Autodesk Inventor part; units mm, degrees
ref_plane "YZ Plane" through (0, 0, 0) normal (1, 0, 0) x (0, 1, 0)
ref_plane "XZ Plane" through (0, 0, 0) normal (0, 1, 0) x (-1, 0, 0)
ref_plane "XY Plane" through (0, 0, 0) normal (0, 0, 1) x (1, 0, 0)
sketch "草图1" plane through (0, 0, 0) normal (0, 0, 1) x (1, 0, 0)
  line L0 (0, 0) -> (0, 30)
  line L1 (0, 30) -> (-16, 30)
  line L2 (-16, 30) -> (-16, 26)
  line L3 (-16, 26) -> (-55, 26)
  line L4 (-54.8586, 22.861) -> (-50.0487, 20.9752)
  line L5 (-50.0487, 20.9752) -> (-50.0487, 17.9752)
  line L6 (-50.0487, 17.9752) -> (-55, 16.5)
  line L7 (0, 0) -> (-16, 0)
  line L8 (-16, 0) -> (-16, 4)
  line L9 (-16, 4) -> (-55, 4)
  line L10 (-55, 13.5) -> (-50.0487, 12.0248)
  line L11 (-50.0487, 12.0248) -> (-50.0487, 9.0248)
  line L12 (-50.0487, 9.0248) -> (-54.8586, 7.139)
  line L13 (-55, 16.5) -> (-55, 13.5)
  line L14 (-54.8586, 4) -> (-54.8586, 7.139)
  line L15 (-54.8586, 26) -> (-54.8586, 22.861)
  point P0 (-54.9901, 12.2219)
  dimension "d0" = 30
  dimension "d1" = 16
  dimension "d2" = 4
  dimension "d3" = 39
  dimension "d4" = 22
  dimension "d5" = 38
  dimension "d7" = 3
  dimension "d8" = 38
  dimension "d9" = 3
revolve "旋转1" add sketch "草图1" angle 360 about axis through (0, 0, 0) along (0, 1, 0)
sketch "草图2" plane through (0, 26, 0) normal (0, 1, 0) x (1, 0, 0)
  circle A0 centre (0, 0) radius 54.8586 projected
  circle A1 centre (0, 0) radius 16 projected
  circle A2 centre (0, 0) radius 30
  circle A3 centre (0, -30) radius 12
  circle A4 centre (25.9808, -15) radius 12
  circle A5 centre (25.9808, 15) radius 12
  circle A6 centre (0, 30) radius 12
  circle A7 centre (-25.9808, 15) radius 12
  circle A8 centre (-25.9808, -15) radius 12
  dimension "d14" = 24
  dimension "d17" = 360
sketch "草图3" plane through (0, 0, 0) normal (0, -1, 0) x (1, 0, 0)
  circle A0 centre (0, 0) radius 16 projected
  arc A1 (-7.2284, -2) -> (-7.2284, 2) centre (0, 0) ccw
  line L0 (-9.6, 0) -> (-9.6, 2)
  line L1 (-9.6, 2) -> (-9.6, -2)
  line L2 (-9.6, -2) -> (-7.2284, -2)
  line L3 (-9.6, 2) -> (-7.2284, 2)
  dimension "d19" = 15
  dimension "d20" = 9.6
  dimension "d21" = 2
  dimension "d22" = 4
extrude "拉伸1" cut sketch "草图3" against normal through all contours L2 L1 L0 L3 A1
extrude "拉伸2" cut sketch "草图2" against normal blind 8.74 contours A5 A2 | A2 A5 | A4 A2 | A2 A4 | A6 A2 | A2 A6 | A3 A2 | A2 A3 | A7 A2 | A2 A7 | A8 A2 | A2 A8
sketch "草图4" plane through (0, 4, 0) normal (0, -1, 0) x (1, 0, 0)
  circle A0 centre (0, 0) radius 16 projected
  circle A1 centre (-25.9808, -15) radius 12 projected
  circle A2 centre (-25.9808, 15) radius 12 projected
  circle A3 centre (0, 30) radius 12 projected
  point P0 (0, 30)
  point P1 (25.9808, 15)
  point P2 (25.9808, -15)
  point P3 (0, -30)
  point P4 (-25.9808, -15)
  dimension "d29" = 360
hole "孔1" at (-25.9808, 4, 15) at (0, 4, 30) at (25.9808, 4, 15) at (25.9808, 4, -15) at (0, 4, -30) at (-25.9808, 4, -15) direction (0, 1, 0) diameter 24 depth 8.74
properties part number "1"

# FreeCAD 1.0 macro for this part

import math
import FreeCAD as App
import Part
import Sketcher

V = App.Vector
Q = App.Units.Quantity


def add_polygon(sketch, points):
    """Adds a closed chain of lines whose ends are joined by coincident constraints."""
    first, n = sketch.GeometryCount, len(points)
    for a, b in zip(points, points[1:] + points[:1]):
        sketch.addGeometry(Part.LineSegment(App.Vector(*a, 0), App.Vector(*b, 0)), False)
    for i in range(n):
        sketch.addConstraint(Sketcher.Constraint("Coincident", first + i, 2, first + (i + 1) % n, 1))

doc = App.newDocument("Part")
body = doc.addObject("PartDesign::Body", "Body")

# Sketch on XY plane
sketch1 = body.newObject("Sketcher::SketchObject", "Sketch")
sketch1.AttachmentSupport = (doc.getObject("XY_Plane"), [""])
sketch1.MapMode = "FlatFace"
add_polygon(sketch1, [(-16, 0), (0, 0), (0, 30), (-16, 30), (-16, 26), (-54.9, 26), (-54.9, 22.9), (-50, 21), (-50, 18), (-55, 16.5), (-55, 13.5), (-50, 12), (-50, 9), (-54.9, 7.1), (-54.9, 4), (-16, 4)])  # lines 0-15
sketch1.addConstraint(Sketcher.Constraint("Horizontal", 0))
sketch1.addConstraint(Sketcher.Constraint("Vertical", 1))
sketch1.addConstraint(Sketcher.Constraint("Horizontal", 2))
sketch1.addConstraint(Sketcher.Constraint("Vertical", 3))
sketch1.addConstraint(Sketcher.Constraint("Horizontal", 4))
sketch1.addConstraint(Sketcher.Constraint("Vertical", 5))
sketch1.addConstraint(Sketcher.Constraint("Vertical", 7))
sketch1.addConstraint(Sketcher.Constraint("Vertical", 9))
sketch1.addConstraint(Sketcher.Constraint("Vertical", 11))
sketch1.addConstraint(Sketcher.Constraint("Vertical", 13))
sketch1.addConstraint(Sketcher.Constraint("Horizontal", 14))
sketch1.addConstraint(Sketcher.Constraint("Vertical", 15))
sketch1.addConstraint(Sketcher.Constraint("Coincident", 0, 2, -1, 1))
sketch1.addConstraint(Sketcher.Constraint("Vertical", 7, 2, 10, 2))
sketch1.addConstraint(Sketcher.Constraint("Vertical", 5, 2, 12, 2))
sketch1.addConstraint(Sketcher.Constraint("Vertical", 3, 2, 14, 2))
sketch1.addConstraint(Sketcher.Constraint("Equal", 7, 9))
sketch1.addConstraint(Sketcher.Constraint("Equal", 9, 11))
sketch1.addConstraint(Sketcher.Constraint("Equal", 5, 13))
sketch1.addConstraint(Sketcher.Constraint("Equal", 3, 15))
sketch1.addConstraint(Sketcher.Constraint("Equal", 6, 8))
sketch1.addConstraint(Sketcher.Constraint("Equal", 8, 10))
sketch1.addConstraint(Sketcher.Constraint("Equal", 10, 12))
sketch1.addConstraint(Sketcher.Constraint("DistanceX", 0, 1, 0, 2, Q("16 mm")))
sketch1.addConstraint(Sketcher.Constraint("DistanceY", 1, 1, 1, 2, Q("30 mm")))
sketch1.addConstraint(Sketcher.Constraint("DistanceY", 3, 2, 3, 1, Q("4 mm")))
sketch1.addConstraint(Sketcher.Constraint("DistanceY", 7, 2, 7, 1, Q("3 mm")))
sketch1.addConstraint(Sketcher.Constraint("DistanceX", 8, 2, 3, 2, Q("39 mm")))
sketch1.addConstraint(Sketcher.Constraint("Angle", 8, Q("-163.409 deg")))
sketch1.addConstraint(Sketcher.Constraint("DistanceY", 5, 2, 5, 1, Q("3.139 mm")))
sketch1.addConstraint(Sketcher.Constraint("DistanceX", 5, 2, 6, 2, Q("4.81 mm")))
revolution = body.newObject("PartDesign::Revolution", "Revolution")
revolution.Profile = sketch1
revolution.ReferenceAxis = (sketch1, ["V_Axis"])
revolution.Angle = 360

# Sketch on XZ plane
sketch2 = body.newObject("Sketcher::SketchObject", "Sketch001")
sketch2.AttachmentSupport = (doc.getObject("XZ_Plane"), [""])
sketch2.MapMode = "FlatFace"
sketch2.addGeometry(Part.LineSegment(V(-9.6, -2, 0), V(-7.2, -2, 0)), False)
sketch2.addGeometry(Part.ArcOfCircle(Part.Circle(V(0, 0, 0), V(0, 0, 1), 7.5), math.radians(-165), math.radians(165)), False)
sketch2.addGeometry(Part.LineSegment(V(-7.2, 2, 0), V(-9.6, 2, 0)), False)
sketch2.addGeometry(Part.LineSegment(V(-9.6, 2, 0), V(-9.6, -2, 0)), False)
sketch2.addConstraint(Sketcher.Constraint("Coincident", 0, 2, 1, 1))
sketch2.addConstraint(Sketcher.Constraint("Coincident", 1, 2, 2, 1))
sketch2.addConstraint(Sketcher.Constraint("Coincident", 2, 2, 3, 1))
sketch2.addConstraint(Sketcher.Constraint("Coincident", 3, 2, 0, 1))
sketch2.addConstraint(Sketcher.Constraint("Horizontal", 0))
sketch2.addConstraint(Sketcher.Constraint("Horizontal", 2))
sketch2.addConstraint(Sketcher.Constraint("Vertical", 3))
sketch2.addConstraint(Sketcher.Constraint("Coincident", 1, 3, -1, 1))
sketch2.addConstraint(Sketcher.Constraint("Vertical", 0, 2, 1, 2))
sketch2.addConstraint(Sketcher.Constraint("Radius", 1, Q("7.5 mm")))
sketch2.addConstraint(Sketcher.Constraint("DistanceY", 3, 2, 3, 1, Q("4 mm")))
sketch2.addConstraint(Sketcher.Constraint("DistanceX", 2, 2, -1, 1, Q("9.6 mm")))
pocket1 = body.newObject("PartDesign::Pocket", "Pocket")
pocket1.Profile = sketch2
pocket1.Type = "ThroughAll"

# Sketch on XZ plane
sketch3 = body.newObject("Sketcher::SketchObject", "Sketch002")
sketch3.AttachmentSupport = (doc.getObject("XZ_Plane"), [""])
sketch3.MapMode = "FlatFace"
sketch3.AttachmentOffset = App.Placement(V(0, 0, -26), App.Rotation())
sketch3.addGeometry(Part.Circle(V(26, -15, 0), V(0, 0, 1), 12), False)
sketch3.addGeometry(Part.Circle(V(26, 15, 0), V(0, 0, 1), 12), False)
sketch3.addGeometry(Part.Circle(V(0, -30, 0), V(0, 0, 1), 12), False)
sketch3.addGeometry(Part.Circle(V(0, 30, 0), V(0, 0, 1), 12), False)
sketch3.addGeometry(Part.Circle(V(-26, -15, 0), V(0, 0, 1), 12), False)
sketch3.addGeometry(Part.Circle(V(-26, 15, 0), V(0, 0, 1), 12), False)
sketch3.addConstraint(Sketcher.Constraint("Equal", 0, 1))
sketch3.addConstraint(Sketcher.Constraint("Equal", 1, 2))
sketch3.addConstraint(Sketcher.Constraint("Equal", 2, 3))
sketch3.addConstraint(Sketcher.Constraint("Equal", 3, 4))
sketch3.addConstraint(Sketcher.Constraint("Equal", 4, 5))
sketch3.addConstraint(Sketcher.Constraint("Symmetric", 2, 3, 3, 3, -1, 1))
sketch3.addConstraint(Sketcher.Constraint("Symmetric", 1, 3, 4, 3, -1, 1))
sketch3.addConstraint(Sketcher.Constraint("Symmetric", 0, 3, 5, 3, -1, 1))
sketch3.addConstraint(Sketcher.Constraint("Symmetric", 0, 3, 4, 3, -2))
sketch3.addConstraint(Sketcher.Constraint("PointOnObject", 2, 3, -2))
sketch3.addConstraint(Sketcher.Constraint("Diameter", 0, Q("24 mm")))
sketch3.addConstraint(Sketcher.Constraint("DistanceY", 0, 3, -1, 1, Q("15 mm")))
sketch3.addConstraint(Sketcher.Constraint("DistanceY", 2, 3, -1, 1, Q("30 mm")))
sketch3.addConstraint(Sketcher.Constraint("DistanceX", -1, 1, 0, 3, Q("25.9808 mm")))
pocket2 = body.newObject("PartDesign::Pocket", "Pocket001")
pocket2.Profile = sketch3
pocket2.Length = 8.74
pocket2.Reversed = True

# Sketch on XZ plane
sketch4 = body.newObject("Sketcher::SketchObject", "Sketch003")
sketch4.AttachmentSupport = (doc.getObject("XZ_Plane"), [""])
sketch4.MapMode = "FlatFace"
sketch4.AttachmentOffset = App.Placement(V(0, 0, -4), App.Rotation())
sketch4.addGeometry(Part.Circle(V(-26, 15, 0), V(0, 0, 1), 12), False)
sketch4.addGeometry(Part.Circle(V(0, 30, 0), V(0, 0, 1), 12), False)
sketch4.addGeometry(Part.Circle(V(26, 15, 0), V(0, 0, 1), 12), False)
sketch4.addGeometry(Part.Circle(V(26, -15, 0), V(0, 0, 1), 12), False)
sketch4.addGeometry(Part.Circle(V(0, -30, 0), V(0, 0, 1), 12), False)
sketch4.addGeometry(Part.Circle(V(-26, -15, 0), V(0, 0, 1), 12), False)
sketch4.addConstraint(Sketcher.Constraint("Equal", 0, 1))
sketch4.addConstraint(Sketcher.Constraint("Equal", 1, 2))
sketch4.addConstraint(Sketcher.Constraint("Equal", 2, 3))
sketch4.addConstraint(Sketcher.Constraint("Equal", 3, 4))
sketch4.addConstraint(Sketcher.Constraint("Equal", 4, 5))
sketch4.addConstraint(Sketcher.Constraint("Symmetric", 0, 3, 3, 3, -1, 1))
sketch4.addConstraint(Sketcher.Constraint("Symmetric", 1, 3, 4, 3, -1, 1))
sketch4.addConstraint(Sketcher.Constraint("Symmetric", 2, 3, 5, 3, -1, 1))
sketch4.addConstraint(Sketcher.Constraint("Symmetric", 0, 3, 2, 3, -2))
sketch4.addConstraint(Sketcher.Constraint("PointOnObject", 1, 3, -2))
sketch4.addConstraint(Sketcher.Constraint("Diameter", 0, Q("24 mm")))
sketch4.addConstraint(Sketcher.Constraint("DistanceY", -1, 1, 0, 3, Q("15 mm")))
sketch4.addConstraint(Sketcher.Constraint("DistanceY", -1, 1, 1, 3, Q("30 mm")))
sketch4.addConstraint(Sketcher.Constraint("DistanceX", 0, 3, -1, 1, Q("25.9808 mm")))
doc.recompute()
hole = body.newObject("PartDesign::Hole", "Hole")
hole.Profile = sketch4
hole.ThreadType = "None"
hole.Diameter = 24
hole.DepthType = "Dimension"
hole.Depth = 8.74
hole.DrillPoint = "Flat"

doc.recompute()
